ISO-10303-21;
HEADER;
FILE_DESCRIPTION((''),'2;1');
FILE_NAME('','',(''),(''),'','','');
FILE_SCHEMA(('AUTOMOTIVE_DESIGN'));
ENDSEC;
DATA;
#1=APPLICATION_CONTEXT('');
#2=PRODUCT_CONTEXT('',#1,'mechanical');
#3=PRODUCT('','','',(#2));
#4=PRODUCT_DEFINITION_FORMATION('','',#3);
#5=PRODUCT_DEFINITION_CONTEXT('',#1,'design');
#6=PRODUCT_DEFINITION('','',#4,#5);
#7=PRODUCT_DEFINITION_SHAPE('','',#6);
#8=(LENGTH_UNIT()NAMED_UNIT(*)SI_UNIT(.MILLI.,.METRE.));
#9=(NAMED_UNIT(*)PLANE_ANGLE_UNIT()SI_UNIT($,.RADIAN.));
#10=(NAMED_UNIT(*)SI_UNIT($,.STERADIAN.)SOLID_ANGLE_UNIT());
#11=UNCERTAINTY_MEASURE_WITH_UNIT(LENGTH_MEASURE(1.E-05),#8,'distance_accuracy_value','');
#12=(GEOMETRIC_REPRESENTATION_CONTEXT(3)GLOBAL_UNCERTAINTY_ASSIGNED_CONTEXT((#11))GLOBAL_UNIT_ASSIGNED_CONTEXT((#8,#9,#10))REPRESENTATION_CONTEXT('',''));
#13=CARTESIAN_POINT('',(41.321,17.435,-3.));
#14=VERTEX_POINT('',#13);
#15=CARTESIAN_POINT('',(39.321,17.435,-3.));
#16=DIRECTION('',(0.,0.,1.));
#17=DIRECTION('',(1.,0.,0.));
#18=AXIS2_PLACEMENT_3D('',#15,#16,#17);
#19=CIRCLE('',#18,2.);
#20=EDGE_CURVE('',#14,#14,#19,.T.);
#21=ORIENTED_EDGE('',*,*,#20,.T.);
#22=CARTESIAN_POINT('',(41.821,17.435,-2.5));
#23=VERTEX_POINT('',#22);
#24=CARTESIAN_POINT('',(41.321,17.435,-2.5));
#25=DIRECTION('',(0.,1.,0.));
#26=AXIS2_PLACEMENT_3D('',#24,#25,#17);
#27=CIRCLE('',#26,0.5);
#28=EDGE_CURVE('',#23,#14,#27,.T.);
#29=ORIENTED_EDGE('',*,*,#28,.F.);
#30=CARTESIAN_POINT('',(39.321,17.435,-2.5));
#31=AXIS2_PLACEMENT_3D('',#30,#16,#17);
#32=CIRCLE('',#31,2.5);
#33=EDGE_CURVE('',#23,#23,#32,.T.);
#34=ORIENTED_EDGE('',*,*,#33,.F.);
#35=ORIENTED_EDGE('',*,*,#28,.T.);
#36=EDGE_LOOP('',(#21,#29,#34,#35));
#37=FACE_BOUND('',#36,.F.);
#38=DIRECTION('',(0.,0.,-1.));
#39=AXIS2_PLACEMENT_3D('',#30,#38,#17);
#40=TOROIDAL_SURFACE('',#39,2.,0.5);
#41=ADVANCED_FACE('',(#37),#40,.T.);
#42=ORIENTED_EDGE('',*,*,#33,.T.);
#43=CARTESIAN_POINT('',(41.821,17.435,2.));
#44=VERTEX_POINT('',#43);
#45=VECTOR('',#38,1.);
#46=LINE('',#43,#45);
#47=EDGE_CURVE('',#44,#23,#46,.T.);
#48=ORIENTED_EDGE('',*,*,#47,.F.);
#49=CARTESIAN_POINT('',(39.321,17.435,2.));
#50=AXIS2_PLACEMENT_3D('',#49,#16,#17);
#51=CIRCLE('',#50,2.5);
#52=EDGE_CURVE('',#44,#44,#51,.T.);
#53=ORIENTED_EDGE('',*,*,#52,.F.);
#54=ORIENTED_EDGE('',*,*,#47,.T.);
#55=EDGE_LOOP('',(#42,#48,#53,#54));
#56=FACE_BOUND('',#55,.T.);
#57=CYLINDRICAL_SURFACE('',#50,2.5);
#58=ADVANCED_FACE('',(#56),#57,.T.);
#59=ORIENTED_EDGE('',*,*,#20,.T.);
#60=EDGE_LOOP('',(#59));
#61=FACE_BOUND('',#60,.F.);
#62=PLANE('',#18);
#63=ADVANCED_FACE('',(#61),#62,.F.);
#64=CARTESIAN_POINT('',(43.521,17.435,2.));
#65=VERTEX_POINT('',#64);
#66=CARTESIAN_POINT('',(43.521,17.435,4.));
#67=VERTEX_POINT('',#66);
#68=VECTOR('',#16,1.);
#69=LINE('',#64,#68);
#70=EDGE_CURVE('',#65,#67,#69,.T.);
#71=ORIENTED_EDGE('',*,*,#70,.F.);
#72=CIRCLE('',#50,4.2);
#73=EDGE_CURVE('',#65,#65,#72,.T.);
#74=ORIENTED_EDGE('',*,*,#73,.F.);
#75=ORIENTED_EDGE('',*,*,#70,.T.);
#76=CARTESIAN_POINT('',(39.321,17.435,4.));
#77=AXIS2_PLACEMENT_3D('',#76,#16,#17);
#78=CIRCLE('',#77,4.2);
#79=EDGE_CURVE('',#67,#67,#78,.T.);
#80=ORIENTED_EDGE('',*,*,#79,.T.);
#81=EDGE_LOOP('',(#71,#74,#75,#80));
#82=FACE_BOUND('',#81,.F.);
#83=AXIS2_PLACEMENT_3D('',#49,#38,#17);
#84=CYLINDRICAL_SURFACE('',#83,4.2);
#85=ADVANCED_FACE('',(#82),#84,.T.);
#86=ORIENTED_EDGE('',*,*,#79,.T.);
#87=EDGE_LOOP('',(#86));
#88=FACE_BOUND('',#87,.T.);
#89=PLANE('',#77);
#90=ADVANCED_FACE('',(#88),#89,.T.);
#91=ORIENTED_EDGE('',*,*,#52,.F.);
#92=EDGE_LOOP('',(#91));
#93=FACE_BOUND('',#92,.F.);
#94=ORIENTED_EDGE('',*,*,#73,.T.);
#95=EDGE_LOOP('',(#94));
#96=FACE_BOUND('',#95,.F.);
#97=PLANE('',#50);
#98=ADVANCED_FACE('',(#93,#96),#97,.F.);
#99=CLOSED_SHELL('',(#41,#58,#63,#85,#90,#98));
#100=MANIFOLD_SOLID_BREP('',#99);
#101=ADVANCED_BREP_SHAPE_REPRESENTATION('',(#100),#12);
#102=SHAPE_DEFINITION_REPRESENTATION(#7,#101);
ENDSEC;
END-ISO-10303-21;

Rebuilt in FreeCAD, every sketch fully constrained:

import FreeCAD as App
import Part
import Sketcher
from FreeCAD import Vector


def edges_at(feature, points):
    """Names of the edges that pass closest to the given points."""
    edges = feature.Shape.Edges
    near = lambda p: min(range(len(edges)), key=lambda i: edges[i].distToShape(Part.Vertex(*p))[0])
    return sorted({f"Edge{near(p) + 1}" for p in points})

doc = App.newDocument("Part")
params = doc.addObject("Spreadsheet::Sheet", "Params")
for row, (alias, value) in enumerate([
    ("sketch1_diameter", "5 mm"),
    ("pad1_length", "5 mm"),
    ("sketch2_diameter", "8.4 mm"),
    ("pad2_length", "2 mm"),
    ("fillet_radius", "0.5 mm"),
], start=1):
    params.set(f"A{row}", alias)
    params.set(f"B{row}", "=" + value)
    params.setAlias(f"B{row}", alias)

body = doc.addObject("PartDesign::Body", "Body")

sketch1 = body.newObject("Sketcher::SketchObject", "Sketch")
sketch1.AttachmentSupport = (doc.getObject("XY_Plane"), [""])
sketch1.MapMode = "FlatFace"
sketch1.AttachmentOffset = App.Placement(Vector(0, 0, 2), App.Rotation())
sketch1.addGeometry(Part.Circle(Vector(39.3, 17.4, 0), Vector(0, 0, 1), 2.5), False)
sketch1.addConstraint(Sketcher.Constraint("Diameter", 0, 5.0))
sketch1.addConstraint(Sketcher.Constraint("DistanceX", -1, 1, 0, 3, 39.321))
sketch1.addConstraint(Sketcher.Constraint("DistanceY", -1, 1, 0, 3, 17.435))
sketch1.setExpression("Constraints[0]", "Params.sketch1_diameter")
pad1 = body.newObject("PartDesign::Pad", "Pad")
pad1.Profile = sketch1
pad1.setExpression("Length", "Params.pad1_length")
pad1.Reversed = True

sketch2 = body.newObject("Sketcher::SketchObject", "Sketch001")
sketch2.AttachmentSupport = (doc.getObject("XY_Plane"), [""])
sketch2.MapMode = "FlatFace"
sketch2.AttachmentOffset = App.Placement(Vector(0, 0, 2), App.Rotation())
sketch2.addGeometry(Part.Circle(Vector(39.3, 17.4, 0), Vector(0, 0, 1), 4.2), False)
sketch2.addConstraint(Sketcher.Constraint("Diameter", 0, 8.4))
sketch2.addConstraint(Sketcher.Constraint("DistanceX", -1, 1, 0, 3, 39.321))
sketch2.addConstraint(Sketcher.Constraint("DistanceY", -1, 1, 0, 3, 17.435))
sketch2.setExpression("Constraints[0]", "Params.sketch2_diameter")
pad2 = body.newObject("PartDesign::Pad", "Pad001")
pad2.Profile = sketch2
pad2.setExpression("Length", "Params.pad2_length")
doc.recompute()

fillet = body.newObject("PartDesign::Fillet", "Fillet")
fillet.Base = (pad2, edges_at(pad2, [(36.821, 17.435, -3)]))
fillet.setExpression("Radius", "Params.fillet_radius")

doc.recompute()
